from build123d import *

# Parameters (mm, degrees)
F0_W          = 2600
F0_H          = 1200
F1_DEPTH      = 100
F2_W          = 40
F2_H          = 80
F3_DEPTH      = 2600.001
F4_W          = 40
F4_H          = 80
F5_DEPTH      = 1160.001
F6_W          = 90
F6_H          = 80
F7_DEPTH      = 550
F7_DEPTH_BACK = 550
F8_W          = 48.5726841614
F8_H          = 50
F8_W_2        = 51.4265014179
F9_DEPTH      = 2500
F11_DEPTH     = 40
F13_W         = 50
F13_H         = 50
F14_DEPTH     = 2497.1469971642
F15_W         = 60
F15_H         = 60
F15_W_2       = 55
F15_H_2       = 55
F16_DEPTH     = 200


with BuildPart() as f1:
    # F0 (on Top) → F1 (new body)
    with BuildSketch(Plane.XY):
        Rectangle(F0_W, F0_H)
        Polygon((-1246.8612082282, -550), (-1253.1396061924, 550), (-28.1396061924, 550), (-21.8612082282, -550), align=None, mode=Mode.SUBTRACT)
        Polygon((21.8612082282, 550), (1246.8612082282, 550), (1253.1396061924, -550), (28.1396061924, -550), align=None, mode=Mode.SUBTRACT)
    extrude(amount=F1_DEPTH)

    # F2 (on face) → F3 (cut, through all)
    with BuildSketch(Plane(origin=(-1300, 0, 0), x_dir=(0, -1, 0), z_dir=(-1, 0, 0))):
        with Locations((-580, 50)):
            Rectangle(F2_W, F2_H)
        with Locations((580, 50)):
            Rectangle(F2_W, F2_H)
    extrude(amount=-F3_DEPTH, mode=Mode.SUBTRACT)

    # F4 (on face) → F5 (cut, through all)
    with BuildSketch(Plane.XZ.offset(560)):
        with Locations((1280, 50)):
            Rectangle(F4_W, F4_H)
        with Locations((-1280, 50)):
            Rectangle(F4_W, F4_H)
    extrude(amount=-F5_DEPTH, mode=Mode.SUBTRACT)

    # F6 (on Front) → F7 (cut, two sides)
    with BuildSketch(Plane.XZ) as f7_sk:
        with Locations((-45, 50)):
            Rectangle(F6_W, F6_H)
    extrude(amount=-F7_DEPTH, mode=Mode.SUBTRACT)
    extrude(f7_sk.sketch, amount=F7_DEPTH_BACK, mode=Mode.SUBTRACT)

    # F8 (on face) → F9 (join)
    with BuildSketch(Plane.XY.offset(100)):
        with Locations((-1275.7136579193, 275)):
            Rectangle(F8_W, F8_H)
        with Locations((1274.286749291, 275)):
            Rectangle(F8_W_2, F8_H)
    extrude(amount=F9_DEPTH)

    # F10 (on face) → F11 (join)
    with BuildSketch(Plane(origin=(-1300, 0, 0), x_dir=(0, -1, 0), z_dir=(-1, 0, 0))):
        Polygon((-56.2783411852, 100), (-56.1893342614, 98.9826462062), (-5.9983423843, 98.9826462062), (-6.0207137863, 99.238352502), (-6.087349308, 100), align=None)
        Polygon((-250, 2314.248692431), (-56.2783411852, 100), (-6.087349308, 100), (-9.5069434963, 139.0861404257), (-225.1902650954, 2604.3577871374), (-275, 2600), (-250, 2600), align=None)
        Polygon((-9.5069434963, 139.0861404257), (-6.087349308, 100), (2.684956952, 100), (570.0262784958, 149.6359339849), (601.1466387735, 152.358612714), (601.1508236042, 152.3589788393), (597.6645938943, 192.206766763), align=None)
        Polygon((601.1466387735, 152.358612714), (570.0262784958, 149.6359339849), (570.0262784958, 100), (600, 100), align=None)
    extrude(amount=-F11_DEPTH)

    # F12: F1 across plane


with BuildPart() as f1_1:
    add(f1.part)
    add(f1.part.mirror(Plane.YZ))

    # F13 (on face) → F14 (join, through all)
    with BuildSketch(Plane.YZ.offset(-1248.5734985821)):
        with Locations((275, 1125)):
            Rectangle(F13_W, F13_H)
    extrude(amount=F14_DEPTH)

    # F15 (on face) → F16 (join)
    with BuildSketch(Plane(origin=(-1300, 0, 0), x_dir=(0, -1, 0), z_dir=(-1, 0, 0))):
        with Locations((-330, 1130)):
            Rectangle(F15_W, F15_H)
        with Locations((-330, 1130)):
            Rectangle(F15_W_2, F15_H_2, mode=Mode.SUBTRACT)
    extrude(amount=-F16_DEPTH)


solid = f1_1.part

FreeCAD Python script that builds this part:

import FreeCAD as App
import Part
import Sketcher
from FreeCAD import Vector
Q = App.Units.Quantity

doc = App.newDocument("Part")
params = doc.addObject("Spreadsheet::Sheet", "Params")
for row, (alias, value) in enumerate([
    ("sketch1_width", "2600 mm"),
    ("sketch1_width2", "1225 mm"),
    ("sketch1_height", "1200 mm"),
    ("pad1_length", "100 mm"),
    ("sketch2_width", "40 mm"),
    ("sketch2_height", "80 mm"),
    ("sketch3_width", "40 mm"),
    ("sketch3_height", "80 mm"),
    ("sketch4_width", "90 mm"),
    ("sketch4_height", "80 mm"),
    ("pocket3_length", "550 mm"),
    ("pocket3_length2", "550 mm"),
    ("sketch5_height", "50 mm"),
    ("pad2_length", "2500 mm"),
    ("sketch6_width", "25 mm"),
    ("sketch6_length", "40 mm"),
    ("sketch6_length2", "50 mm"),
    ("pad3_length", "40 mm"),
    ("sketch7_width", "50 mm"),
    ("sketch8_width", "60 mm"),
    ("sketch8_width2", "55 mm"),
    ("pad5_length", "200 mm"),
], start=1):
    params.set(f"A{row}", alias)
    params.set(f"B{row}", "=" + value)
    params.setAlias(f"B{row}", alias)

body = doc.addObject("PartDesign::Body", "Body")

# Sketch on XY plane
sketch1 = body.newObject("Sketcher::SketchObject", "Sketch")
sketch1.AttachmentSupport = (doc.getObject("XY_Plane"), [""])
sketch1.MapMode = "FlatFace"
sketch1.addGeometry([
    Part.LineSegment(Vector(-1300, 600, 0), Vector(-1300, -600, 0)),  # 0
    Part.LineSegment(Vector(-1300, -600, 0), Vector(1300, -600, 0)),  # 1
    Part.LineSegment(Vector(1300, -600, 0), Vector(1300, 600, 0)),  # 2
    Part.LineSegment(Vector(1300, 600, 0), Vector(-1300, 600, 0)),  # 3
    Part.LineSegment(Vector(-22, -550, 0), Vector(-1247, -550, 0)),  # 4
    Part.LineSegment(Vector(-1247, -550, 0), Vector(-1253, 550, 0)),  # 5
    Part.LineSegment(Vector(-1253, 550, 0), Vector(-28, 550, 0)),  # 6
    Part.LineSegment(Vector(-28, 550, 0), Vector(-22, -550, 0)),  # 7
    Part.LineSegment(Vector(28, -550, 0), Vector(22, 550, 0)),  # 8
    Part.LineSegment(Vector(22, 550, 0), Vector(1247, 550, 0)),  # 9
    Part.LineSegment(Vector(1247, 550, 0), Vector(1253, -550, 0)),  # 10
    Part.LineSegment(Vector(1253, -550, 0), Vector(28, -550, 0)),  # 11
], False)
sketch1.addConstraint([
    Sketcher.Constraint("Coincident", 0, 2, 1, 1),
    Sketcher.Constraint("Coincident", 1, 2, 2, 1),
    Sketcher.Constraint("Coincident", 2, 2, 3, 1),
    Sketcher.Constraint("Coincident", 3, 2, 0, 1),
    Sketcher.Constraint("Coincident", 4, 2, 5, 1),
    Sketcher.Constraint("Coincident", 5, 2, 6, 1),
    Sketcher.Constraint("Coincident", 6, 2, 7, 1),
    Sketcher.Constraint("Coincident", 7, 2, 4, 1),
    Sketcher.Constraint("Coincident", 8, 2, 9, 1),
    Sketcher.Constraint("Coincident", 9, 2, 10, 1),
    Sketcher.Constraint("Coincident", 10, 2, 11, 1),
    Sketcher.Constraint("Coincident", 11, 2, 8, 1),
    Sketcher.Constraint("Vertical", 0),
    Sketcher.Constraint("Horizontal", 1),
    Sketcher.Constraint("Vertical", 2),
    Sketcher.Constraint("Horizontal", 3),
    Sketcher.Constraint("Horizontal", 4),
    Sketcher.Constraint("Horizontal", 6),
    Sketcher.Constraint("Horizontal", 9),
    Sketcher.Constraint("Horizontal", 11),
    Sketcher.Constraint("Symmetric", 0, 2, 2, 2, -1, 1),
    Sketcher.Constraint("Symmetric", 7, 2, 8, 2, -1, 1),
    Sketcher.Constraint("Symmetric", 5, 2, 10, 2, -1, 1),
    Sketcher.Constraint("Parallel", 5, 7),
    Sketcher.Constraint("Parallel", 7, 8),
    Sketcher.Constraint("Parallel", 8, 10),
    Sketcher.Constraint("Horizontal", 6, 2, 8, 2),
    Sketcher.Constraint("DistanceX", 1, 1, 1, 2, 2600.0),
    Sketcher.Constraint("DistanceX", 4, 2, 4, 1, 1225.0),
    Sketcher.Constraint("DistanceY", 0, 2, 0, 1, 1200.0),
    Sketcher.Constraint("DistanceY", 4, 2, -1, 1, 550.0),
    Sketcher.Constraint("DistanceX", 4, 2, -1, 1, 1246.861208),
    Sketcher.Constraint("DistanceX", 5, 2, -1, 1, 1253.139606),
])
sketch1.setExpression("Constraints[27]", "Params.sketch1_width")
sketch1.setExpression("Constraints[28]", "Params.sketch1_width2")
sketch1.setExpression("Constraints[29]", "Params.sketch1_height")
pad1 = body.newObject("PartDesign::Pad", "Pad")
pad1.Profile = sketch1
pad1.setExpression("Length", "Params.pad1_length")

# Sketch on YZ plane
sketch2 = body.newObject("Sketcher::SketchObject", "Sketch001")
sketch2.AttachmentSupport = (doc.getObject("YZ_Plane"), [""])
sketch2.MapMode = "FlatFace"
sketch2.AttachmentOffset = App.Placement(Vector(0, 0, -1300), App.Rotation())
sketch2.addGeometry([
    Part.LineSegment(Vector(600, 90, 0), Vector(600, 10, 0)),  # 0
    Part.LineSegment(Vector(600, 10, 0), Vector(560, 10, 0)),  # 1
    Part.LineSegment(Vector(560, 10, 0), Vector(560, 90, 0)),  # 2
    Part.LineSegment(Vector(560, 90, 0), Vector(600, 90, 0)),  # 3
    Part.LineSegment(Vector(-560, 90, 0), Vector(-560, 10, 0)),  # 4
    Part.LineSegment(Vector(-560, 10, 0), Vector(-600, 10, 0)),  # 5
    Part.LineSegment(Vector(-600, 10, 0), Vector(-600, 90, 0)),  # 6
    Part.LineSegment(Vector(-600, 90, 0), Vector(-560, 90, 0)),  # 7
], False)
sketch2.addConstraint([
    Sketcher.Constraint("Coincident", 0, 2, 1, 1),
    Sketcher.Constraint("Coincident", 1, 2, 2, 1),
    Sketcher.Constraint("Coincident", 2, 2, 3, 1),
    Sketcher.Constraint("Coincident", 3, 2, 0, 1),
    Sketcher.Constraint("Coincident", 4, 2, 5, 1),
    Sketcher.Constraint("Coincident", 5, 2, 6, 1),
    Sketcher.Constraint("Coincident", 6, 2, 7, 1),
    Sketcher.Constraint("Coincident", 7, 2, 4, 1),
    Sketcher.Constraint("Vertical", 0),
    Sketcher.Constraint("Horizontal", 1),
    Sketcher.Constraint("Vertical", 2),
    Sketcher.Constraint("Horizontal", 3),
    Sketcher.Constraint("Vertical", 4),
    Sketcher.Constraint("Horizontal", 5),
    Sketcher.Constraint("Vertical", 6),
    Sketcher.Constraint("Horizontal", 7),
    Sketcher.Constraint("Symmetric", 1, 2, 4, 2, -2),
    Sketcher.Constraint("Symmetric", 3, 2, 6, 2, -2),
    Sketcher.Constraint("DistanceX", 1, 2, 1, 1, 40.0),
    Sketcher.Constraint("DistanceY", 0, 2, 0, 1, 80.0),
    Sketcher.Constraint("DistanceX", -1, 1, 0, 2, 600.0),
    Sketcher.Constraint("DistanceY", -1, 1, 0, 2, 10.0),
])
sketch2.setExpression("Constraints[18]", "Params.sketch2_width")
sketch2.setExpression("Constraints[19]", "Params.sketch2_height")
pocket1 = body.newObject("PartDesign::Pocket", "Pocket")
pocket1.Profile = sketch2
pocket1.Type = "ThroughAll"
pocket1.Reversed = True

# Sketch on XZ plane
sketch3 = body.newObject("Sketcher::SketchObject", "Sketch002")
sketch3.AttachmentSupport = (doc.getObject("XZ_Plane"), [""])
sketch3.MapMode = "FlatFace"
sketch3.AttachmentOffset = App.Placement(Vector(0, 0, 560), App.Rotation())
sketch3.addGeometry([
    Part.LineSegment(Vector(1260, 90, 0), Vector(1260, 10, 0)),  # 0
    Part.LineSegment(Vector(1260, 10, 0), Vector(1300, 10, 0)),  # 1
    Part.LineSegment(Vector(1300, 10, 0), Vector(1300, 90, 0)),  # 2
    Part.LineSegment(Vector(1300, 90, 0), Vector(1260, 90, 0)),  # 3
    Part.LineSegment(Vector(-1300, 90, 0), Vector(-1300, 10, 0)),  # 4
    Part.LineSegment(Vector(-1300, 10, 0), Vector(-1260, 10, 0)),  # 5
    Part.LineSegment(Vector(-1260, 10, 0), Vector(-1260, 90, 0)),  # 6
    Part.LineSegment(Vector(-1260, 90, 0), Vector(-1300, 90, 0)),  # 7
], False)
sketch3.addConstraint([
    Sketcher.Constraint("Coincident", 0, 2, 1, 1),
    Sketcher.Constraint("Coincident", 1, 2, 2, 1),
    Sketcher.Constraint("Coincident", 2, 2, 3, 1),
    Sketcher.Constraint("Coincident", 3, 2, 0, 1),
    Sketcher.Constraint("Coincident", 4, 2, 5, 1),
    Sketcher.Constraint("Coincident", 5, 2, 6, 1),
    Sketcher.Constraint("Coincident", 6, 2, 7, 1),
    Sketcher.Constraint("Coincident", 7, 2, 4, 1),
    Sketcher.Constraint("Vertical", 0),
    Sketcher.Constraint("Horizontal", 1),
    Sketcher.Constraint("Vertical", 2),
    Sketcher.Constraint("Horizontal", 3),
    Sketcher.Constraint("Vertical", 4),
    Sketcher.Constraint("Horizontal", 5),
    Sketcher.Constraint("Vertical", 6),
    Sketcher.Constraint("Horizontal", 7),
    Sketcher.Constraint("Symmetric", 1, 2, 4, 2, -2),
    Sketcher.Constraint("Symmetric", 3, 2, 6, 2, -2),
    Sketcher.Constraint("DistanceX", 1, 1, 1, 2, 40.0),
    Sketcher.Constraint("DistanceY", 0, 2, 0, 1, 80.0),
    Sketcher.Constraint("DistanceX", -1, 1, 0, 2, 1260.0),
    Sketcher.Constraint("DistanceY", -1, 1, 0, 2, 10.0),
])
sketch3.setExpression("Constraints[18]", "Params.sketch3_width")
sketch3.setExpression("Constraints[19]", "Params.sketch3_height")
pocket2 = body.newObject("PartDesign::Pocket", "Pocket001")
pocket2.Profile = sketch3
pocket2.Type = "ThroughAll"

# Sketch on XZ plane
sketch4 = body.newObject("Sketcher::SketchObject", "Sketch003")
sketch4.AttachmentSupport = (doc.getObject("XZ_Plane"), [""])
sketch4.MapMode = "FlatFace"
sketch4.addGeometry([
    Part.LineSegment(Vector(-90, 90, 0), Vector(-90, 10, 0)),
    Part.LineSegment(Vector(-90, 10, 0), Vector(0, 10, 0)),
    Part.LineSegment(Vector(0, 10, 0), Vector(0, 90, 0)),
    Part.LineSegment(Vector(0, 90, 0), Vector(-90, 90, 0)),
], False)
sketch4.addConstraint([
    Sketcher.Constraint("Coincident", 0, 2, 1, 1),
    Sketcher.Constraint("Coincident", 1, 2, 2, 1),
    Sketcher.Constraint("Coincident", 2, 2, 3, 1),
    Sketcher.Constraint("Coincident", 3, 2, 0, 1),
    Sketcher.Constraint("Vertical", 0),
    Sketcher.Constraint("Horizontal", 1),
    Sketcher.Constraint("Vertical", 2),
    Sketcher.Constraint("Horizontal", 3),
    Sketcher.Constraint("PointOnObject", 1, 2, -2),
    Sketcher.Constraint("DistanceX", 1, 1, 1, 2, 90.0),
    Sketcher.Constraint("DistanceY", 0, 2, 0, 1, 80.0),
    Sketcher.Constraint("DistanceY", -1, 1, 0, 2, 10.0),
])
sketch4.setExpression("Constraints[9]", "Params.sketch4_width")
sketch4.setExpression("Constraints[10]", "Params.sketch4_height")
pocket3 = body.newObject("PartDesign::Pocket", "Pocket002")
pocket3.Profile = sketch4
pocket3.Type = "TwoLengths"
pocket3.setExpression("Length", "Params.pocket3_length")
pocket3.setExpression("Length2", "Params.pocket3_length2")

# Sketch on XY plane
sketch5 = body.newObject("Sketcher::SketchObject", "Sketch004")
sketch5.AttachmentSupport = (doc.getObject("XY_Plane"), [""])
sketch5.MapMode = "FlatFace"
sketch5.AttachmentOffset = App.Placement(Vector(0, 0, 100), App.Rotation())
sketch5.addGeometry([
    Part.LineSegment(Vector(-1300, 300, 0), Vector(-1300, 250, 0)),  # 0
    Part.LineSegment(Vector(-1300, 250, 0), Vector(-1251, 250, 0)),  # 1
    Part.LineSegment(Vector(-1251, 250, 0), Vector(-1251, 300, 0)),  # 2
    Part.LineSegment(Vector(-1251, 300, 0), Vector(-1300, 300, 0)),  # 3
    Part.LineSegment(Vector(1249, 300, 0), Vector(1249, 250, 0)),  # 4
    Part.LineSegment(Vector(1249, 250, 0), Vector(1300, 250, 0)),  # 5
    Part.LineSegment(Vector(1300, 250, 0), Vector(1300, 300, 0)),  # 6
    Part.LineSegment(Vector(1300, 300, 0), Vector(1249, 300, 0)),  # 7
], False)
sketch5.addConstraint([
    Sketcher.Constraint("Coincident", 0, 2, 1, 1),
    Sketcher.Constraint("Coincident", 1, 2, 2, 1),
    Sketcher.Constraint("Coincident", 2, 2, 3, 1),
    Sketcher.Constraint("Coincident", 3, 2, 0, 1),
    Sketcher.Constraint("Coincident", 4, 2, 5, 1),
    Sketcher.Constraint("Coincident", 5, 2, 6, 1),
    Sketcher.Constraint("Coincident", 6, 2, 7, 1),
    Sketcher.Constraint("Coincident", 7, 2, 4, 1),
    Sketcher.Constraint("Vertical", 0),
    Sketcher.Constraint("Horizontal", 1),
    Sketcher.Constraint("Vertical", 2),
    Sketcher.Constraint("Horizontal", 3),
    Sketcher.Constraint("Vertical", 4),
    Sketcher.Constraint("Horizontal", 5),
    Sketcher.Constraint("Vertical", 6),
    Sketcher.Constraint("Horizontal", 7),
    Sketcher.Constraint("Symmetric", 0, 2, 5, 2, -2),
    Sketcher.Constraint("Horizontal", 3, 2, 6, 2),
    Sketcher.Constraint("DistanceY", 0, 2, 0, 1, 50.0),
    Sketcher.Constraint("DistanceX", 0, 2, -1, 1, 1300.0),
    Sketcher.Constraint("DistanceY", -1, 1, 0, 2, 250.0),
    Sketcher.Constraint("DistanceX", 5, 1, 5, 2, 51.426501),
    Sketcher.Constraint("DistanceX", 1, 1, 1, 2, 48.572684),
])
sketch5.setExpression("Constraints[18]", "Params.sketch5_height")
pad2 = body.newObject("PartDesign::Pad", "Pad001")
pad2.Profile = sketch5
pad2.setExpression("Length", "Params.pad2_length")

# Sketch on YZ plane
sketch6 = body.newObject("Sketcher::SketchObject", "Sketch005")
sketch6.AttachmentSupport = (doc.getObject("YZ_Plane"), [""])
sketch6.MapMode = "FlatFace"
sketch6.AttachmentOffset = App.Placement(Vector(0, 0, -1300), App.Rotation())
sketch6.addGeometry([
    Part.LineSegment(Vector(56.2783, 100, 0), Vector(56.1893, 98.9826, 0)),  # 0
    Part.LineSegment(Vector(56.1893, 98.9826, 0), Vector(5.9983, 98.9826, 0)),  # 1
    Part.LineSegment(Vector(5.9983, 98.9826, 0), Vector(6.0207, 99.2384, 0)),  # 2
    Part.LineSegment(Vector(6.0207, 99.2384, 0), Vector(6.0873, 100, 0)),  # 3
    Part.LineSegment(Vector(6.0873, 100, 0), Vector(-2.685, 100, 0)),  # 4
    Part.LineSegment(Vector(-2.685, 100, 0), Vector(-570.0263, 149.6359, 0)),  # 5
    Part.LineSegment(Vector(-570.0263, 149.6359, 0), Vector(-570.0263, 100, 0)),  # 6
    Part.LineSegment(Vector(-570.0263, 100, 0), Vector(-600, 100, 0)),  # 7
    Part.LineSegment(Vector(-600, 100, 0), Vector(-601.1466, 152.3586, 0)),  # 8
    Part.LineSegment(Vector(-601.1466, 152.3586, 0), Vector(-601.1508, 152.359, 0)),  # 9
    Part.LineSegment(Vector(-601.1508, 152.359, 0), Vector(-597.6646, 192.2068, 0)),  # 10
    Part.LineSegment(Vector(-597.6646, 192.2068, 0), Vector(9.5069, 139.0861, 0)),  # 11
    Part.LineSegment(Vector(9.5069, 139.0861, 0), Vector(225.1903, 2604.3578, 0)),  # 12
    Part.LineSegment(Vector(225.1903, 2604.3578, 0), Vector(275, 2600, 0)),  # 13
    Part.LineSegment(Vector(275, 2600, 0), Vector(250, 2600, 0)),  # 14
    Part.LineSegment(Vector(250, 2600, 0), Vector(250, 2314.2487, 0)),  # 15
    Part.LineSegment(Vector(250, 2314.2487, 0), Vector(56.2783, 100, 0)),  # 16
], False)
sketch6.addConstraint([
    Sketcher.Constraint("Coincident", 0, 2, 1, 1),
    Sketcher.Constraint("Coincident", 1, 2, 2, 1),
    Sketcher.Constraint("Coincident", 2, 2, 3, 1),
    Sketcher.Constraint("Coincident", 3, 2, 4, 1),
    Sketcher.Constraint("Coincident", 4, 2, 5, 1),
    Sketcher.Constraint("Coincident", 5, 2, 6, 1),
    Sketcher.Constraint("Coincident", 6, 2, 7, 1),
    Sketcher.Constraint("Coincident", 7, 2, 8, 1),
    Sketcher.Constraint("Coincident", 8, 2, 9, 1),
    Sketcher.Constraint("Coincident", 9, 2, 10, 1),
    Sketcher.Constraint("Coincident", 10, 2, 11, 1),
    Sketcher.Constraint("Coincident", 11, 2, 12, 1),
    Sketcher.Constraint("Coincident", 12, 2, 13, 1),
    Sketcher.Constraint("Coincident", 13, 2, 14, 1),
    Sketcher.Constraint("Coincident", 14, 2, 15, 1),
    Sketcher.Constraint("Coincident", 15, 2, 16, 1),
    Sketcher.Constraint("Coincident", 16, 2, 0, 1),
    Sketcher.Constraint("Horizontal", 1),
    Sketcher.Constraint("Horizontal", 4),
    Sketcher.Constraint("Vertical", 6),
    Sketcher.Constraint("Horizontal", 7),
    Sketcher.Constraint("Horizontal", 14),
    Sketcher.Constraint("Vertical", 15),
    Sketcher.Constraint("Parallel", 0, 2),
    Sketcher.Constraint("Parallel", 2, 3),
    Sketcher.Constraint("Perpendicular", 3, 5),
    Sketcher.Constraint("Parallel", 5, 9),
    Sketcher.Constraint("Perpendicular", 5, 10),
    Sketcher.Constraint("Perpendicular", 10, 11),
    Sketcher.Constraint("Perpendicular", 11, 12),
    Sketcher.Constraint("Perpendicular", 12, 13),
    Sketcher.Constraint("Perpendicular", 13, 16),
    Sketcher.Constraint("Horizontal", 4, 2, 6, 2),
    Sketcher.Constraint("Horizontal", 7, 2, 16, 2),
    Sketcher.Constraint("DistanceX", 14, 2, 14, 1, 25.0),
    Sketcher.Constraint("Angle", 5, Q("175 deg")),
    Sketcher.Constraint("Distance", 10, 40.0),
    Sketcher.Constraint("Distance", 13, 50.0),
    Sketcher.Constraint("DistanceY", -1, 1, 3, 2, 100.0),
    Sketcher.Constraint("DistanceX", 7, 2, -1, 1, 600.0),
    Sketcher.Constraint("DistanceX", -1, 1, 13, 2, 275.0),
    Sketcher.Constraint("DistanceY", -1, 1, 13, 2, 2600.0),
    Sketcher.Constraint("DistanceX", 1, 2, 16, 2, 50.279999),
    Sketcher.Constraint("Distance", 9, 0.004201),
    Sketcher.Constraint("DistanceX", 1, 2, 1, 1, 50.190992),
    Sketcher.Constraint("DistanceX", 7, 2, 7, 1, 29.973722),
    Sketcher.Constraint("DistanceX", 4, 2, 1, 2, 8.683299),
    Sketcher.Constraint("DistanceX", 1, 2, 11, 2, 3.508601),
    Sketcher.Constraint("DistanceY", 15, 2, 15, 1, 285.751308),
    Sketcher.Constraint("DistanceX", 8, 2, -1, 1, 601.146639),
    Sketcher.Constraint("DistanceX", 1, 2, 2, 2, 0.022371),
])
sketch6.setExpression("Constraints[34]", "Params.sketch6_width")
sketch6.setExpression("Constraints[36]", "Params.sketch6_length")
sketch6.setExpression("Constraints[37]", "Params.sketch6_length2")
pad3 = body.newObject("PartDesign::Pad", "Pad002")
pad3.Profile = sketch6
pad3.setExpression("Length", "Params.pad3_length")
body2 = doc.addObject("PartDesign::Body", "Body001")
doc.recompute()

body2.BaseFeature = body
doc.recompute()

mirroring = doc.addObject("Part::Mirroring", "Mirroring")
mirroring.Source = body
mirroring.Base = Vector(0, 0, 0)
mirroring.Normal = Vector(1, 0, 0)
body3 = doc.addObject("PartDesign::Body", "Body002")
body3.BaseFeature = mirroring
boolean = body2.newObject("PartDesign::Boolean", "Boolean")
boolean.Type = "Fuse"
boolean.addObjects([body3])
doc.recompute()

# Sketch on YZ plane
sketch7 = body2.newObject("Sketcher::SketchObject", "Sketch006")
sketch7.AttachmentSupport = (doc.getObject("YZ_Plane001"), [""])
sketch7.MapMode = "FlatFace"
sketch7.AttachmentOffset = App.Placement(Vector(0, 0, -1248.573499), App.Rotation())
sketch7.addGeometry([
    Part.LineSegment(Vector(250, 1150, 0), Vector(250, 1100, 0)),
    Part.LineSegment(Vector(250, 1100, 0), Vector(300, 1100, 0)),
    Part.LineSegment(Vector(300, 1100, 0), Vector(300, 1150, 0)),
    Part.LineSegment(Vector(300, 1150, 0), Vector(250, 1150, 0)),
], False)
sketch7.addConstraint([
    Sketcher.Constraint("Coincident", 0, 2, 1, 1),
    Sketcher.Constraint("Coincident", 1, 2, 2, 1),
    Sketcher.Constraint("Coincident", 2, 2, 3, 1),
    Sketcher.Constraint("Coincident", 3, 2, 0, 1),
    Sketcher.Constraint("Vertical", 0),
    Sketcher.Constraint("Horizontal", 1),
    Sketcher.Constraint("Vertical", 2),
    Sketcher.Constraint("Horizontal", 3),
    Sketcher.Constraint("Equal", 3, 0),
    Sketcher.Constraint("DistanceX", 1, 1, 1, 2, 50.0),
    Sketcher.Constraint("DistanceX", -1, 1, 0, 2, 250.0),
    Sketcher.Constraint("DistanceY", -1, 1, 0, 2, 1100.0),
])
sketch7.setExpression("Constraints[9]", "Params.sketch7_width")
pad4 = body2.newObject("PartDesign::Pad", "Pad003")
pad4.Profile = sketch7
pad4.Type = "UpToLast"

# Sketch on YZ plane
sketch8 = body2.newObject("Sketcher::SketchObject", "Sketch007")
sketch8.AttachmentSupport = (doc.getObject("YZ_Plane001"), [""])
sketch8.MapMode = "FlatFace"
sketch8.AttachmentOffset = App.Placement(Vector(0, 0, -1300), App.Rotation())
sketch8.addGeometry([
    Part.LineSegment(Vector(360, 1160, 0), Vector(360, 1100, 0)),  # 0
    Part.LineSegment(Vector(360, 1100, 0), Vector(300, 1100, 0)),  # 1
    Part.LineSegment(Vector(300, 1100, 0), Vector(300, 1160, 0)),  # 2
    Part.LineSegment(Vector(300, 1160, 0), Vector(360, 1160, 0)),  # 3
    Part.LineSegment(Vector(302, 1102, 0), Vector(358, 1102, 0)),  # 4
    Part.LineSegment(Vector(358, 1102, 0), Vector(358, 1158, 0)),  # 5
    Part.LineSegment(Vector(358, 1158, 0), Vector(302, 1158, 0)),  # 6
    Part.LineSegment(Vector(302, 1158, 0), Vector(302, 1102, 0)),  # 7
], False)
sketch8.addConstraint([
    Sketcher.Constraint("Coincident", 0, 2, 1, 1),
    Sketcher.Constraint("Coincident", 1, 2, 2, 1),
    Sketcher.Constraint("Coincident", 2, 2, 3, 1),
    Sketcher.Constraint("Coincident", 3, 2, 0, 1),
    Sketcher.Constraint("Coincident", 4, 2, 5, 1),
    Sketcher.Constraint("Coincident", 5, 2, 6, 1),
    Sketcher.Constraint("Coincident", 6, 2, 7, 1),
    Sketcher.Constraint("Coincident", 7, 2, 4, 1),
    Sketcher.Constraint("Vertical", 0),
    Sketcher.Constraint("Horizontal", 1),
    Sketcher.Constraint("Vertical", 2),
    Sketcher.Constraint("Horizontal", 3),
    Sketcher.Constraint("Horizontal", 4),
    Sketcher.Constraint("Vertical", 5),
    Sketcher.Constraint("Horizontal", 6),
    Sketcher.Constraint("Vertical", 7),
    Sketcher.Constraint("Equal", 3, 0),
    Sketcher.Constraint("Equal", 6, 5),
    Sketcher.Constraint("DistanceX", 1, 2, 1, 1, 60.0),
    Sketcher.Constraint("DistanceX", 4, 1, 4, 2, 55.0),
    Sketcher.Constraint("DistanceX", -1, 1, 0, 2, 360.0),
    Sketcher.Constraint("DistanceY", -1, 1, 0, 2, 1100.0),
    Sketcher.Constraint("DistanceX", -1, 1, 4, 2, 357.5),
    Sketcher.Constraint("DistanceY", -1, 1, 4, 2, 1102.5),
])
sketch8.setExpression("Constraints[18]", "Params.sketch8_width")
sketch8.setExpression("Constraints[19]", "Params.sketch8_width2")
pad5 = body2.newObject("PartDesign::Pad", "Pad004")
pad5.Profile = sketch8
pad5.setExpression("Length", "Params.pad5_length")
mirroring.Visibility = False

doc.recompute()
